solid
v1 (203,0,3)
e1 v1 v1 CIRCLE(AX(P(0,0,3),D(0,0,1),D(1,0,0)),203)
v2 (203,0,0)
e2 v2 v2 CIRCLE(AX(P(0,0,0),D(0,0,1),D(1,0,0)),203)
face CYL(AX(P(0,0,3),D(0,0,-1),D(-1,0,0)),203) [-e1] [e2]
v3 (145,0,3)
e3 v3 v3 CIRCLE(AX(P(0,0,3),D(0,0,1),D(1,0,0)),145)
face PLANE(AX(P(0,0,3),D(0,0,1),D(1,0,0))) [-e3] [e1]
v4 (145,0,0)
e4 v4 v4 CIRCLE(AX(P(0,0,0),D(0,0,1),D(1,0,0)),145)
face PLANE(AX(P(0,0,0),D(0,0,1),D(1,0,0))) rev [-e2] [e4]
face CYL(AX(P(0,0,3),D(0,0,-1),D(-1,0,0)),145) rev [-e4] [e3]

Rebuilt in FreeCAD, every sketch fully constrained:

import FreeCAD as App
import Part
import Sketcher
from FreeCAD import Vector

doc = App.newDocument("Part")
body = doc.addObject("PartDesign::Body", "Body")

sketch1 = body.newObject("Sketcher::SketchObject", "Sketch")
sketch1.AttachmentSupport = (doc.getObject("XY_Plane"), [""])
sketch1.MapMode = "FlatFace"
sketch1.addGeometry([
    Part.Circle(Vector(0, 0, 0), Vector(0, 0, 1), 203),
    Part.Circle(Vector(0, 0, 0), Vector(0, 0, 1), 145),
], False)
sketch1.addConstraint([
    Sketcher.Constraint("Coincident", 0, 3, -1, 1),
    Sketcher.Constraint("Coincident", 1, 3, -1, 1),
    Sketcher.Constraint("Diameter", 0, 406.0),
    Sketcher.Constraint("Diameter", 1, 290.0),
])
pad1 = body.newObject("PartDesign::Pad", "Pad")
pad1.Profile = sketch1
pad1.Length = 3

doc.recompute()
